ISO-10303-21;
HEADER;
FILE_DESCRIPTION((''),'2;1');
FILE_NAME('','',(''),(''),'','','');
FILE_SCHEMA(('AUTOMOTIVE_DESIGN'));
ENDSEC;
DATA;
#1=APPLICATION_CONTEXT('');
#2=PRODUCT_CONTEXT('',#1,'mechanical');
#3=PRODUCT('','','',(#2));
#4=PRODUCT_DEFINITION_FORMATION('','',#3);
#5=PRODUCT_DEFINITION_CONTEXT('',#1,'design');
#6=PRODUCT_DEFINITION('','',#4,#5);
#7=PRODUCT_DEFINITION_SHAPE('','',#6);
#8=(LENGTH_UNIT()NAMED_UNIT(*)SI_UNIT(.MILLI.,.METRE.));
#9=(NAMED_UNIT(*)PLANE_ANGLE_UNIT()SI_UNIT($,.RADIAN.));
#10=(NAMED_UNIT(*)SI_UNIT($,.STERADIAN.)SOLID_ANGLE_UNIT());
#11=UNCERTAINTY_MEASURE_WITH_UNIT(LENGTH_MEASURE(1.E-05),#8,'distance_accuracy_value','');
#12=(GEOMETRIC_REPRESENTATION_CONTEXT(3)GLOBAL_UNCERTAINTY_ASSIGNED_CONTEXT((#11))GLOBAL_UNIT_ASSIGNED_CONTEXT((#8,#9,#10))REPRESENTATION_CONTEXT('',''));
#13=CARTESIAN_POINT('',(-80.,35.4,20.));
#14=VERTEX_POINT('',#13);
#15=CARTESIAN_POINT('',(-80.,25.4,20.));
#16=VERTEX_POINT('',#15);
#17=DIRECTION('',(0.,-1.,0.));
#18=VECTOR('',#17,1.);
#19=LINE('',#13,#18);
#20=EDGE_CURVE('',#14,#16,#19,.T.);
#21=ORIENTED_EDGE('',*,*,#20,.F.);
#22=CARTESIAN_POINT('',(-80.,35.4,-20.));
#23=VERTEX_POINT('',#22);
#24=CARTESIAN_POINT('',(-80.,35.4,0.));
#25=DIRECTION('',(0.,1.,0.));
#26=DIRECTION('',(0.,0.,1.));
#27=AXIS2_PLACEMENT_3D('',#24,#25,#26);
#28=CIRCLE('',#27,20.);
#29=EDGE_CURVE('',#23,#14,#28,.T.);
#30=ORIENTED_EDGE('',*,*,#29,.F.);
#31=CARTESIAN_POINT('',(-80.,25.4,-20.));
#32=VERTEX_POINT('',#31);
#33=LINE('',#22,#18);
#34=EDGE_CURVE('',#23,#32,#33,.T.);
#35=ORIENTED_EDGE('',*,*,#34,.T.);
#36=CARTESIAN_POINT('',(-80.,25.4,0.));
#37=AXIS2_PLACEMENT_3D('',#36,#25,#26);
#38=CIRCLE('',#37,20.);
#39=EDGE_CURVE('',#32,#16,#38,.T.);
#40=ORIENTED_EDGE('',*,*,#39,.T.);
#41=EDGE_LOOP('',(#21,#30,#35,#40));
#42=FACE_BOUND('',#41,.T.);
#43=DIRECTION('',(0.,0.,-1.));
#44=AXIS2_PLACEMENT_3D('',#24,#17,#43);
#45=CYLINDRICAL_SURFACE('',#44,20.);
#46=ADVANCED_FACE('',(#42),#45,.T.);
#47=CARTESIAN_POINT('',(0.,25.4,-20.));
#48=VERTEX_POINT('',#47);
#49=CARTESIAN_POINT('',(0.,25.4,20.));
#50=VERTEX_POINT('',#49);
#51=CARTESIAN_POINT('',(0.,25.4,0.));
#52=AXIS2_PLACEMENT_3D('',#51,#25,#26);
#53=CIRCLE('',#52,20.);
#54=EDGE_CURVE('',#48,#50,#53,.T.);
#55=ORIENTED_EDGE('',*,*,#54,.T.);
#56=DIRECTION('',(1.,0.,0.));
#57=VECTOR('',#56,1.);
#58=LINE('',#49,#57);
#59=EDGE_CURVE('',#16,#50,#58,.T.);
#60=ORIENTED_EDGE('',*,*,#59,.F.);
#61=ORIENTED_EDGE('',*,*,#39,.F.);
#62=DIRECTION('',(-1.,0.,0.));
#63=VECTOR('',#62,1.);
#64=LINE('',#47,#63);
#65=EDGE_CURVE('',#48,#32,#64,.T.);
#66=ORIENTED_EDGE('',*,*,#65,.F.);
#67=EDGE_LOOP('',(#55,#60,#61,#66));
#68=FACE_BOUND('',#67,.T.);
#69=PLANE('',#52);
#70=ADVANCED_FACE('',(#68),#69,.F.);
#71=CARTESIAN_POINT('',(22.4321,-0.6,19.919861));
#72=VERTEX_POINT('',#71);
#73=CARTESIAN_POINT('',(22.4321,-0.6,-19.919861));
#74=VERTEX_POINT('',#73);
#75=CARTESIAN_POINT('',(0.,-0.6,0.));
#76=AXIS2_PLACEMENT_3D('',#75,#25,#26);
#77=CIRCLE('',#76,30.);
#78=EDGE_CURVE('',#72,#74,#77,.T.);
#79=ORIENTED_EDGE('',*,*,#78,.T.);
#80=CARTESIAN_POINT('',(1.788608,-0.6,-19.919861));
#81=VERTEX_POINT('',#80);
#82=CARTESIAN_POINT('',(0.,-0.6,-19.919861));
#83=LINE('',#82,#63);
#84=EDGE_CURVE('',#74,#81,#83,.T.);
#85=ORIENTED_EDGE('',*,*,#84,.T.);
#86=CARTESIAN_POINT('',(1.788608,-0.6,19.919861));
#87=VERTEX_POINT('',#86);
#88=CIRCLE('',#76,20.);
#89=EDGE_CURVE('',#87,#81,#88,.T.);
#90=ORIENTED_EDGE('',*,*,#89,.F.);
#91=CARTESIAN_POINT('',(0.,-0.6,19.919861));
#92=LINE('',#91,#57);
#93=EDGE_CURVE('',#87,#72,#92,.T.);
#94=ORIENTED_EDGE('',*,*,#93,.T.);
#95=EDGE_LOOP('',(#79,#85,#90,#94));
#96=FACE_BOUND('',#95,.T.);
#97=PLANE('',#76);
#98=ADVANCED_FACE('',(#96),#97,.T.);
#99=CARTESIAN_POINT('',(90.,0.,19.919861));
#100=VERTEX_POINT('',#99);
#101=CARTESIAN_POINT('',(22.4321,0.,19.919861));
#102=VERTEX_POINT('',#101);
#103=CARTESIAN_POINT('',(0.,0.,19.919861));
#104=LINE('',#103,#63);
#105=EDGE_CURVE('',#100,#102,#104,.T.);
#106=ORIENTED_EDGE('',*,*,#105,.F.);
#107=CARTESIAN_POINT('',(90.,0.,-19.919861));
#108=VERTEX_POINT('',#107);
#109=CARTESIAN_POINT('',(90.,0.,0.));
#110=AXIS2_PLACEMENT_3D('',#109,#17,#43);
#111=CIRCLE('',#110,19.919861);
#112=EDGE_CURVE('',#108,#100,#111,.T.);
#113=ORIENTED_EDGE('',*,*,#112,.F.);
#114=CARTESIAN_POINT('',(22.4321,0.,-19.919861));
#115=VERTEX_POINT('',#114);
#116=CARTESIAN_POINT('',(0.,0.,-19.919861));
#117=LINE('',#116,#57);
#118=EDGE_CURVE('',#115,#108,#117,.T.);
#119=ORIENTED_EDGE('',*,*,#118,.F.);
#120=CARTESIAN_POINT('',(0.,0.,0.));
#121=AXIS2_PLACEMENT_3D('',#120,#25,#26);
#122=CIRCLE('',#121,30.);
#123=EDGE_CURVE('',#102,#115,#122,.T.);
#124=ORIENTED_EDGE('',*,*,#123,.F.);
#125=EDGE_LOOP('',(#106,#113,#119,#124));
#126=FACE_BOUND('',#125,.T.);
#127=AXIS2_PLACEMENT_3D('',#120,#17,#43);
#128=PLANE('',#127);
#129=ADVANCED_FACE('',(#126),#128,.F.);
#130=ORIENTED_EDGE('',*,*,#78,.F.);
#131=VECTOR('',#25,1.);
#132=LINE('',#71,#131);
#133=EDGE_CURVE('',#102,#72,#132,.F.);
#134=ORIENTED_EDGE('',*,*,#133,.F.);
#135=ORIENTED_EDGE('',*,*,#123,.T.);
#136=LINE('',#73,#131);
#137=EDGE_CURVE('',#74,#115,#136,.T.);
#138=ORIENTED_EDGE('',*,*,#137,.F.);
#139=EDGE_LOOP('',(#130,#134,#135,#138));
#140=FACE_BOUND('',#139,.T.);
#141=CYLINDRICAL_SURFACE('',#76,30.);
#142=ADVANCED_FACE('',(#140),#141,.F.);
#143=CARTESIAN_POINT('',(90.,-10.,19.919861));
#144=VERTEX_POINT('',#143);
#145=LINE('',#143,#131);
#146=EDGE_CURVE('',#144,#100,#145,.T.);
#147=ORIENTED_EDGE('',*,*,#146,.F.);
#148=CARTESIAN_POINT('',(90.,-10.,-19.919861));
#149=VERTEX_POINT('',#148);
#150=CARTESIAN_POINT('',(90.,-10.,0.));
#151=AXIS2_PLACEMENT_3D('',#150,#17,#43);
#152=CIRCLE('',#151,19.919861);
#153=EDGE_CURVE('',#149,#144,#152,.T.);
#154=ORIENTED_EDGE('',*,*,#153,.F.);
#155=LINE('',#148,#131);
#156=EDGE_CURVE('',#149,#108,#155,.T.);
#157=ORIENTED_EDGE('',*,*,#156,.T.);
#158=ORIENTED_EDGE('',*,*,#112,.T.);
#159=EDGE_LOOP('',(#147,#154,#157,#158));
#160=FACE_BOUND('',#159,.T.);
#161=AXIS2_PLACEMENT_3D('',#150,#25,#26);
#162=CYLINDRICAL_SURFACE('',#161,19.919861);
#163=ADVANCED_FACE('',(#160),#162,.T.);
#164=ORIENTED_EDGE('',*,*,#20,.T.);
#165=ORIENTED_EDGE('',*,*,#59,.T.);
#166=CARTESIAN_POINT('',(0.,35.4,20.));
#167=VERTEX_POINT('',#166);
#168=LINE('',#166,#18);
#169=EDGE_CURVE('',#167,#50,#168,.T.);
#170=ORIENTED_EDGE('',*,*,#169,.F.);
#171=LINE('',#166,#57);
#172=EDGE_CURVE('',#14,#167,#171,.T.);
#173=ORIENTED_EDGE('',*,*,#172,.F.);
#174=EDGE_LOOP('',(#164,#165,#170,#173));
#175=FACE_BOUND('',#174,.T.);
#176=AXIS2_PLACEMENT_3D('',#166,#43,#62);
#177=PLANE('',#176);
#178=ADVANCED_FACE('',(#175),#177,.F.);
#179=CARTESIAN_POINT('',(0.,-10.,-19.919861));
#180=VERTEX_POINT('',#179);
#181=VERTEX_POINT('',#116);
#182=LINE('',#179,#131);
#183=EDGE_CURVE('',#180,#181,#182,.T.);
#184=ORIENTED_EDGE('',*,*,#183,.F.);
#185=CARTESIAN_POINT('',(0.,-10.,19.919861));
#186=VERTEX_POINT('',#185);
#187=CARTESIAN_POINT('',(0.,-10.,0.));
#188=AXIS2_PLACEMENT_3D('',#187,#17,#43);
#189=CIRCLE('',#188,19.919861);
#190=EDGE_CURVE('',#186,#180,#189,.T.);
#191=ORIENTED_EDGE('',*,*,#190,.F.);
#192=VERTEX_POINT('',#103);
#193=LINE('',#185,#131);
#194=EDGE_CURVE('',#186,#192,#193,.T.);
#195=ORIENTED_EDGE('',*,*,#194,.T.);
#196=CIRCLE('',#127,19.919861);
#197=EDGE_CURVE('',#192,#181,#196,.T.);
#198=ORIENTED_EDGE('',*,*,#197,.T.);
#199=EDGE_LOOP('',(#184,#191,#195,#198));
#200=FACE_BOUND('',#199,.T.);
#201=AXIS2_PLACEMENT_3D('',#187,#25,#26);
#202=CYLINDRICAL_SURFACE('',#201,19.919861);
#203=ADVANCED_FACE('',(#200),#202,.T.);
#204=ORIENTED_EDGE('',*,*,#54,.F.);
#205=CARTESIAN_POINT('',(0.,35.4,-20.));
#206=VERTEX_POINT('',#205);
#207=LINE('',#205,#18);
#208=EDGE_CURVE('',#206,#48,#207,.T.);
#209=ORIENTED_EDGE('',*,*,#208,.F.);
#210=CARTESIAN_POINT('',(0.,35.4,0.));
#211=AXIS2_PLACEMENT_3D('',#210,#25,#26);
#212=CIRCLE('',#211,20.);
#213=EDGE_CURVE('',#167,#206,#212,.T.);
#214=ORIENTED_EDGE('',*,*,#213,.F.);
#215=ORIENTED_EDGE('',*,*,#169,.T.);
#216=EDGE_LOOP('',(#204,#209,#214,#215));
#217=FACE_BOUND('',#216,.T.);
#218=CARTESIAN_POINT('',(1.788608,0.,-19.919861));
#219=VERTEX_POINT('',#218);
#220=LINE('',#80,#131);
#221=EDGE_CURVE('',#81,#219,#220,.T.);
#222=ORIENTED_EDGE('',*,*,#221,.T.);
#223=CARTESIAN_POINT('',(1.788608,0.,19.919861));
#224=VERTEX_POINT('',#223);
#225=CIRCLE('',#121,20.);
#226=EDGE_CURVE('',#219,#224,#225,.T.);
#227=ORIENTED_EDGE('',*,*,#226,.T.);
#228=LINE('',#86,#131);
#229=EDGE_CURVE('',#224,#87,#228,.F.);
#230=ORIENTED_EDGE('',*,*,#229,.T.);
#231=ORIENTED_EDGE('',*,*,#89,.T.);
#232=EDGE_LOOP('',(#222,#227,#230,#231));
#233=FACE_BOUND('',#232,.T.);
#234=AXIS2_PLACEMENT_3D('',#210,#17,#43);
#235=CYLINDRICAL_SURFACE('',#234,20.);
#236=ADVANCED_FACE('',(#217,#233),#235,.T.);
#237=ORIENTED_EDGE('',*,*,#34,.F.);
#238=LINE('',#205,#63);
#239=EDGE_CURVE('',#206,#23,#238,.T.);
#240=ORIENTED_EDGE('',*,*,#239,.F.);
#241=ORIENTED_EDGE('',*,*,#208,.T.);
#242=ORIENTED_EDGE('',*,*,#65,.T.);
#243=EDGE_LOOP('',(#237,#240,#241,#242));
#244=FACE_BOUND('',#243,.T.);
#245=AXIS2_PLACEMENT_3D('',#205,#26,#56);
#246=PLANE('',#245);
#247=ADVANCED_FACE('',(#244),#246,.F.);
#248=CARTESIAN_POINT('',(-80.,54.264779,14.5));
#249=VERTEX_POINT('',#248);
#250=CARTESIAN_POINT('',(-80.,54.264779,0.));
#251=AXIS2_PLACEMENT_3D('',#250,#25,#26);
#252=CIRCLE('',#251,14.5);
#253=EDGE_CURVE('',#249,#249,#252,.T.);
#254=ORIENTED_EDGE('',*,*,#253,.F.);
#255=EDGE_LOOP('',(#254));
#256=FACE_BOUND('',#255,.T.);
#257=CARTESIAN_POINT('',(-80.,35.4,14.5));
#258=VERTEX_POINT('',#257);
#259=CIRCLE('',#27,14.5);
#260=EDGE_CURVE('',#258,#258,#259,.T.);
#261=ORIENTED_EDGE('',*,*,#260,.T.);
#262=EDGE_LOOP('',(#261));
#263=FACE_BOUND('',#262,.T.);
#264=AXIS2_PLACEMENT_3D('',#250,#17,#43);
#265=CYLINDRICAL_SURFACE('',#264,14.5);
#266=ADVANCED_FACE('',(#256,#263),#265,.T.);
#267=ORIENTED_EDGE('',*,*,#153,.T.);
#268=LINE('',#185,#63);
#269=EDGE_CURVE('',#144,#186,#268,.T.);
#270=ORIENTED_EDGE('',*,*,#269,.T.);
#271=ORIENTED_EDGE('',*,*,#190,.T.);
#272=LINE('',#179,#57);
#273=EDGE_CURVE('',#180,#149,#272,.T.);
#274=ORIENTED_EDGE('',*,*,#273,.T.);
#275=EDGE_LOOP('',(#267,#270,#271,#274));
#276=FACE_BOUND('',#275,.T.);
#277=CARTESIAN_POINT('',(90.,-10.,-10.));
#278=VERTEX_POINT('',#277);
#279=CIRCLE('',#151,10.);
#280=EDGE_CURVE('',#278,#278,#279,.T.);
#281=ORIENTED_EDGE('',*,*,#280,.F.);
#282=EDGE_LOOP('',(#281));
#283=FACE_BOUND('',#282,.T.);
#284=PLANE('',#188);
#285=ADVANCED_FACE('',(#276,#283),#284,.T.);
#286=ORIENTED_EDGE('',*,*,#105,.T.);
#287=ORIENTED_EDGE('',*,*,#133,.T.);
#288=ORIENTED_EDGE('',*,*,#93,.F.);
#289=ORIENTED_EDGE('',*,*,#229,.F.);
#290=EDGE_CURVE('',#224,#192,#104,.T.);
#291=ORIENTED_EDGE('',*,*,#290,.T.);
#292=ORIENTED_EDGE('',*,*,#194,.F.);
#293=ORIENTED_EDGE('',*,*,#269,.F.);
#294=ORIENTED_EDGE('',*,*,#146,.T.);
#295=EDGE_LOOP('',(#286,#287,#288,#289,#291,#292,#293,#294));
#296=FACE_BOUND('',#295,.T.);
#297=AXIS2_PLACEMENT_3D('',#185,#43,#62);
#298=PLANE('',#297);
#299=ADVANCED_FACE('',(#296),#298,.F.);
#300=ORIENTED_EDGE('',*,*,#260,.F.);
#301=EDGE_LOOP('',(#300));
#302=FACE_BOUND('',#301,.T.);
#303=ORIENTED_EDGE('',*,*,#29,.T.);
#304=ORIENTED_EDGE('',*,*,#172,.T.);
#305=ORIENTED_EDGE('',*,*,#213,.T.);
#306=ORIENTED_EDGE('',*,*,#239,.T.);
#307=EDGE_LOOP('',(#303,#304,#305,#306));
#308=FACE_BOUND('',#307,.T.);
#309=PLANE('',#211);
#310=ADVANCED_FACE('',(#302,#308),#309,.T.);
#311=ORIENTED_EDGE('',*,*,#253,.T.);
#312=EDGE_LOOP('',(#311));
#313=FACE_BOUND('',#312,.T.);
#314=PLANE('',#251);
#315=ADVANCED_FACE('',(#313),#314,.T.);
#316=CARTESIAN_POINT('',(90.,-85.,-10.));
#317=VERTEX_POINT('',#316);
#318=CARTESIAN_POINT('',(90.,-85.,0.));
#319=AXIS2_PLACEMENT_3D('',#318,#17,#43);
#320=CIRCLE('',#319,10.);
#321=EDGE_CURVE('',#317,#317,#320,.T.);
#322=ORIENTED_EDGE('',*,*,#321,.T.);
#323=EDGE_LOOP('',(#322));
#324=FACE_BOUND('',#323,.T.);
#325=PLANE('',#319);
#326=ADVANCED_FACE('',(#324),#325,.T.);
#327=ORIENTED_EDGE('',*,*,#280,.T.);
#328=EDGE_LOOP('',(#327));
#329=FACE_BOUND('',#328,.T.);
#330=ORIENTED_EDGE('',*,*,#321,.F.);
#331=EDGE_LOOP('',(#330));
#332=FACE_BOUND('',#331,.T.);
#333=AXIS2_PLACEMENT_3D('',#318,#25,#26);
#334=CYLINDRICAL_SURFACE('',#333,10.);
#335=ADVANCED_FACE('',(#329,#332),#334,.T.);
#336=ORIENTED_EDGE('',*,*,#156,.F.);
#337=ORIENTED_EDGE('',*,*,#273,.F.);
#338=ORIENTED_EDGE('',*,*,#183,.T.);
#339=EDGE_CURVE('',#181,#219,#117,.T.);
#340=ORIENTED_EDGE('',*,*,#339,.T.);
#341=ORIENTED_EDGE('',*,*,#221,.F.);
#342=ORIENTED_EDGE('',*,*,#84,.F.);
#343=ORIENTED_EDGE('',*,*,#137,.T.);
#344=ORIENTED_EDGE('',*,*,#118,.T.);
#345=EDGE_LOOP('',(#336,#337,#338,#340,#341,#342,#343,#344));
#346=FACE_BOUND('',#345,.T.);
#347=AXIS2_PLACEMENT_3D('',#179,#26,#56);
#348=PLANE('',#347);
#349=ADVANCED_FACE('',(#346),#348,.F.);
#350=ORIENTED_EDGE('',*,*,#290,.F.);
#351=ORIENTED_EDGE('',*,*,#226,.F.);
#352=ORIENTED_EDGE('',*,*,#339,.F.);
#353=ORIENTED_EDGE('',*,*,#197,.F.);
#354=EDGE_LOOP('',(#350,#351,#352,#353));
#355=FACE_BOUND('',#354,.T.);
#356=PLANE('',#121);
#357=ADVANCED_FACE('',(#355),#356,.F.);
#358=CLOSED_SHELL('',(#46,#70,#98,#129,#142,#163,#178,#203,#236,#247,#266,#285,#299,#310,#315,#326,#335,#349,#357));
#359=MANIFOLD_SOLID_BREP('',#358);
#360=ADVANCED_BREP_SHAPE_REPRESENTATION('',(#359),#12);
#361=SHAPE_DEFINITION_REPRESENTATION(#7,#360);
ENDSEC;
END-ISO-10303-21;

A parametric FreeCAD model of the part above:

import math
import FreeCAD as App
import Part
import Sketcher

V = App.Vector
Q = App.Units.Quantity

doc = App.newDocument("Part")
body = doc.addObject("PartDesign::Body", "Body")

# Sketch on XZ plane
sketch1 = body.newObject("Sketcher::SketchObject", "Sketch")
sketch1.AttachmentSupport = (doc.getObject("XZ_Plane"), [""])
sketch1.MapMode = "FlatFace"
sketch1.addGeometry(Part.Circle(V(0, 0, 0), V(0, 0, 1), 30), False)
sketch1.addConstraint(Sketcher.Constraint("Coincident", 0, 3, -1, 1))
sketch1.addConstraint(Sketcher.Constraint("Diameter", 0, Q("60 mm")))
pad1 = body.newObject("PartDesign::Pad", "Pad")
pad1.Profile = sketch1
pad1.Length = 25.4
pad1.Reversed = True

# Sketch on XZ plane
sketch2 = body.newObject("Sketcher::SketchObject", "Sketch001")
sketch2.AttachmentSupport = (doc.getObject("XZ_Plane"), [""])
sketch2.MapMode = "FlatFace"
sketch2.AttachmentOffset = App.Placement(V(0, 0, -25.4), App.Rotation())
sketch2.addGeometry(Part.LineSegment(V(-80, 20, 0), V(0, 20, 0)), False)
sketch2.addGeometry(Part.ArcOfCircle(Part.Circle(V(0, 0, 0), V(0, 0, 1), 20), math.radians(-90), math.radians(90)), False)
sketch2.addGeometry(Part.LineSegment(V(0, -20, 0), V(-80, -20, 0)), False)
sketch2.addGeometry(Part.ArcOfCircle(Part.Circle(V(-80, 0, 0), V(0, 0, 1), 20), math.radians(90), math.radians(270)), False)
sketch2.addConstraint(Sketcher.Constraint("Tangent", 0, 2, 1, 2))
sketch2.addConstraint(Sketcher.Constraint("Tangent", 1, 1, 2, 1))
sketch2.addConstraint(Sketcher.Constraint("Tangent", 2, 2, 3, 2))
sketch2.addConstraint(Sketcher.Constraint("Tangent", 3, 1, 0, 1))
sketch2.addConstraint(Sketcher.Constraint("Horizontal", 0))
sketch2.addConstraint(Sketcher.Constraint("Horizontal", 2))
sketch2.addConstraint(Sketcher.Constraint("Coincident", 1, 3, -1, 1))
sketch2.addConstraint(Sketcher.Constraint("Radius", 1, Q("20 mm")))
sketch2.addConstraint(Sketcher.Constraint("DistanceX", 0, 1, 0, 2, Q("80 mm")))
pad2 = body.newObject("PartDesign::Pad", "Pad001")
pad2.Profile = sketch2
pad2.Length = 10
pad2.Reversed = True

# Sketch on XZ plane
sketch3 = body.newObject("Sketcher::SketchObject", "Sketch002")
sketch3.AttachmentSupport = (doc.getObject("XZ_Plane"), [""])
sketch3.MapMode = "FlatFace"
sketch3.AttachmentOffset = App.Placement(V(0, 0, -35.4), App.Rotation())
sketch3.addGeometry(Part.Circle(V(-80, 0, 0), V(0, 0, 1), 14), False)
sketch3.addConstraint(Sketcher.Constraint("PointOnObject", 0, 3, -1))
sketch3.addConstraint(Sketcher.Constraint("Diameter", 0, Q("29 mm")))
sketch3.addConstraint(Sketcher.Constraint("DistanceX", 0, 3, -1, 1, Q("80 mm")))
pad3 = body.newObject("PartDesign::Pad", "Pad002")
pad3.Profile = sketch3
pad3.Length = 18.864779
pad3.Reversed = True

# Sketch on XZ plane
sketch4 = body.newObject("Sketcher::SketchObject", "Sketch003")
sketch4.AttachmentSupport = (doc.getObject("XZ_Plane"), [""])
sketch4.MapMode = "FlatFace"
sketch4.addGeometry(Part.LineSegment(V(90, 20, 0), V(0, 20, 0)), False)
sketch4.addGeometry(Part.ArcOfCircle(Part.Circle(V(0, 0, 0), V(0, 0, 1), 20), math.radians(90), math.radians(270)), False)
sketch4.addGeometry(Part.LineSegment(V(0, -20, 0), V(90, -20, 0)), False)
sketch4.addGeometry(Part.ArcOfCircle(Part.Circle(V(90, 0, 0), V(0, 0, 1), 20), math.radians(-90), math.radians(90)), False)
sketch4.addConstraint(Sketcher.Constraint("Tangent", 0, 2, 1, 1))
sketch4.addConstraint(Sketcher.Constraint("Tangent", 1, 2, 2, 1))
sketch4.addConstraint(Sketcher.Constraint("Tangent", 2, 2, 3, 1))
sketch4.addConstraint(Sketcher.Constraint("Tangent", 3, 2, 0, 1))
sketch4.addConstraint(Sketcher.Constraint("Horizontal", 0))
sketch4.addConstraint(Sketcher.Constraint("Horizontal", 2))
sketch4.addConstraint(Sketcher.Constraint("Coincident", 1, 3, -1, 1))
sketch4.addConstraint(Sketcher.Constraint("DistanceX", 0, 2, 0, 1, Q("90 mm")))
sketch4.addConstraint(Sketcher.Constraint("Radius", 1, Q("19.919861 mm")))
pad4 = body.newObject("PartDesign::Pad", "Pad003")
pad4.Profile = sketch4
pad4.Length = 10

# Sketch on XZ plane
sketch5 = body.newObject("Sketcher::SketchObject", "Sketch004")
sketch5.AttachmentSupport = (doc.getObject("XZ_Plane"), [""])
sketch5.MapMode = "FlatFace"
sketch5.AttachmentOffset = App.Placement(V(0, 0, 10), App.Rotation())
sketch5.addGeometry(Part.Circle(V(90, 0, 0), V(0, 0, 1), 10), False)
sketch5.addConstraint(Sketcher.Constraint("PointOnObject", 0, 3, -1))
sketch5.addConstraint(Sketcher.Constraint("Diameter", 0, Q("20 mm")))
sketch5.addConstraint(Sketcher.Constraint("DistanceX", -1, 1, 0, 3, Q("90 mm")))
pad5 = body.newObject("PartDesign::Pad", "Pad004")
pad5.Profile = sketch5
pad5.Length = 75

# Sketch on XZ plane
sketch6 = body.newObject("Sketcher::SketchObject", "Sketch005")
sketch6.AttachmentSupport = (doc.getObject("XZ_Plane"), [""])
sketch6.MapMode = "FlatFace"
sketch6.AttachmentOffset = App.Placement(V(0, 0, 0.6), App.Rotation())
sketch6.addGeometry(Part.Circle(V(0, 0, 0), V(0, 0, 1), 30), False)
sketch6.addGeometry(Part.Circle(V(0, 0, 0), V(0, 0, 1), 20), False)
sketch6.addConstraint(Sketcher.Constraint("Coincident", 0, 3, -1, 1))
sketch6.addConstraint(Sketcher.Constraint("Coincident", 1, 3, -1, 1))
sketch6.addConstraint(Sketcher.Constraint("Diameter", 0, Q("60 mm")))
sketch6.addConstraint(Sketcher.Constraint("Diameter", 1, Q("40 mm")))
pocket1 = body.newObject("PartDesign::Pocket", "Pocket")
pocket1.Profile = sketch6
pocket1.Length = 26

doc.recompute()
